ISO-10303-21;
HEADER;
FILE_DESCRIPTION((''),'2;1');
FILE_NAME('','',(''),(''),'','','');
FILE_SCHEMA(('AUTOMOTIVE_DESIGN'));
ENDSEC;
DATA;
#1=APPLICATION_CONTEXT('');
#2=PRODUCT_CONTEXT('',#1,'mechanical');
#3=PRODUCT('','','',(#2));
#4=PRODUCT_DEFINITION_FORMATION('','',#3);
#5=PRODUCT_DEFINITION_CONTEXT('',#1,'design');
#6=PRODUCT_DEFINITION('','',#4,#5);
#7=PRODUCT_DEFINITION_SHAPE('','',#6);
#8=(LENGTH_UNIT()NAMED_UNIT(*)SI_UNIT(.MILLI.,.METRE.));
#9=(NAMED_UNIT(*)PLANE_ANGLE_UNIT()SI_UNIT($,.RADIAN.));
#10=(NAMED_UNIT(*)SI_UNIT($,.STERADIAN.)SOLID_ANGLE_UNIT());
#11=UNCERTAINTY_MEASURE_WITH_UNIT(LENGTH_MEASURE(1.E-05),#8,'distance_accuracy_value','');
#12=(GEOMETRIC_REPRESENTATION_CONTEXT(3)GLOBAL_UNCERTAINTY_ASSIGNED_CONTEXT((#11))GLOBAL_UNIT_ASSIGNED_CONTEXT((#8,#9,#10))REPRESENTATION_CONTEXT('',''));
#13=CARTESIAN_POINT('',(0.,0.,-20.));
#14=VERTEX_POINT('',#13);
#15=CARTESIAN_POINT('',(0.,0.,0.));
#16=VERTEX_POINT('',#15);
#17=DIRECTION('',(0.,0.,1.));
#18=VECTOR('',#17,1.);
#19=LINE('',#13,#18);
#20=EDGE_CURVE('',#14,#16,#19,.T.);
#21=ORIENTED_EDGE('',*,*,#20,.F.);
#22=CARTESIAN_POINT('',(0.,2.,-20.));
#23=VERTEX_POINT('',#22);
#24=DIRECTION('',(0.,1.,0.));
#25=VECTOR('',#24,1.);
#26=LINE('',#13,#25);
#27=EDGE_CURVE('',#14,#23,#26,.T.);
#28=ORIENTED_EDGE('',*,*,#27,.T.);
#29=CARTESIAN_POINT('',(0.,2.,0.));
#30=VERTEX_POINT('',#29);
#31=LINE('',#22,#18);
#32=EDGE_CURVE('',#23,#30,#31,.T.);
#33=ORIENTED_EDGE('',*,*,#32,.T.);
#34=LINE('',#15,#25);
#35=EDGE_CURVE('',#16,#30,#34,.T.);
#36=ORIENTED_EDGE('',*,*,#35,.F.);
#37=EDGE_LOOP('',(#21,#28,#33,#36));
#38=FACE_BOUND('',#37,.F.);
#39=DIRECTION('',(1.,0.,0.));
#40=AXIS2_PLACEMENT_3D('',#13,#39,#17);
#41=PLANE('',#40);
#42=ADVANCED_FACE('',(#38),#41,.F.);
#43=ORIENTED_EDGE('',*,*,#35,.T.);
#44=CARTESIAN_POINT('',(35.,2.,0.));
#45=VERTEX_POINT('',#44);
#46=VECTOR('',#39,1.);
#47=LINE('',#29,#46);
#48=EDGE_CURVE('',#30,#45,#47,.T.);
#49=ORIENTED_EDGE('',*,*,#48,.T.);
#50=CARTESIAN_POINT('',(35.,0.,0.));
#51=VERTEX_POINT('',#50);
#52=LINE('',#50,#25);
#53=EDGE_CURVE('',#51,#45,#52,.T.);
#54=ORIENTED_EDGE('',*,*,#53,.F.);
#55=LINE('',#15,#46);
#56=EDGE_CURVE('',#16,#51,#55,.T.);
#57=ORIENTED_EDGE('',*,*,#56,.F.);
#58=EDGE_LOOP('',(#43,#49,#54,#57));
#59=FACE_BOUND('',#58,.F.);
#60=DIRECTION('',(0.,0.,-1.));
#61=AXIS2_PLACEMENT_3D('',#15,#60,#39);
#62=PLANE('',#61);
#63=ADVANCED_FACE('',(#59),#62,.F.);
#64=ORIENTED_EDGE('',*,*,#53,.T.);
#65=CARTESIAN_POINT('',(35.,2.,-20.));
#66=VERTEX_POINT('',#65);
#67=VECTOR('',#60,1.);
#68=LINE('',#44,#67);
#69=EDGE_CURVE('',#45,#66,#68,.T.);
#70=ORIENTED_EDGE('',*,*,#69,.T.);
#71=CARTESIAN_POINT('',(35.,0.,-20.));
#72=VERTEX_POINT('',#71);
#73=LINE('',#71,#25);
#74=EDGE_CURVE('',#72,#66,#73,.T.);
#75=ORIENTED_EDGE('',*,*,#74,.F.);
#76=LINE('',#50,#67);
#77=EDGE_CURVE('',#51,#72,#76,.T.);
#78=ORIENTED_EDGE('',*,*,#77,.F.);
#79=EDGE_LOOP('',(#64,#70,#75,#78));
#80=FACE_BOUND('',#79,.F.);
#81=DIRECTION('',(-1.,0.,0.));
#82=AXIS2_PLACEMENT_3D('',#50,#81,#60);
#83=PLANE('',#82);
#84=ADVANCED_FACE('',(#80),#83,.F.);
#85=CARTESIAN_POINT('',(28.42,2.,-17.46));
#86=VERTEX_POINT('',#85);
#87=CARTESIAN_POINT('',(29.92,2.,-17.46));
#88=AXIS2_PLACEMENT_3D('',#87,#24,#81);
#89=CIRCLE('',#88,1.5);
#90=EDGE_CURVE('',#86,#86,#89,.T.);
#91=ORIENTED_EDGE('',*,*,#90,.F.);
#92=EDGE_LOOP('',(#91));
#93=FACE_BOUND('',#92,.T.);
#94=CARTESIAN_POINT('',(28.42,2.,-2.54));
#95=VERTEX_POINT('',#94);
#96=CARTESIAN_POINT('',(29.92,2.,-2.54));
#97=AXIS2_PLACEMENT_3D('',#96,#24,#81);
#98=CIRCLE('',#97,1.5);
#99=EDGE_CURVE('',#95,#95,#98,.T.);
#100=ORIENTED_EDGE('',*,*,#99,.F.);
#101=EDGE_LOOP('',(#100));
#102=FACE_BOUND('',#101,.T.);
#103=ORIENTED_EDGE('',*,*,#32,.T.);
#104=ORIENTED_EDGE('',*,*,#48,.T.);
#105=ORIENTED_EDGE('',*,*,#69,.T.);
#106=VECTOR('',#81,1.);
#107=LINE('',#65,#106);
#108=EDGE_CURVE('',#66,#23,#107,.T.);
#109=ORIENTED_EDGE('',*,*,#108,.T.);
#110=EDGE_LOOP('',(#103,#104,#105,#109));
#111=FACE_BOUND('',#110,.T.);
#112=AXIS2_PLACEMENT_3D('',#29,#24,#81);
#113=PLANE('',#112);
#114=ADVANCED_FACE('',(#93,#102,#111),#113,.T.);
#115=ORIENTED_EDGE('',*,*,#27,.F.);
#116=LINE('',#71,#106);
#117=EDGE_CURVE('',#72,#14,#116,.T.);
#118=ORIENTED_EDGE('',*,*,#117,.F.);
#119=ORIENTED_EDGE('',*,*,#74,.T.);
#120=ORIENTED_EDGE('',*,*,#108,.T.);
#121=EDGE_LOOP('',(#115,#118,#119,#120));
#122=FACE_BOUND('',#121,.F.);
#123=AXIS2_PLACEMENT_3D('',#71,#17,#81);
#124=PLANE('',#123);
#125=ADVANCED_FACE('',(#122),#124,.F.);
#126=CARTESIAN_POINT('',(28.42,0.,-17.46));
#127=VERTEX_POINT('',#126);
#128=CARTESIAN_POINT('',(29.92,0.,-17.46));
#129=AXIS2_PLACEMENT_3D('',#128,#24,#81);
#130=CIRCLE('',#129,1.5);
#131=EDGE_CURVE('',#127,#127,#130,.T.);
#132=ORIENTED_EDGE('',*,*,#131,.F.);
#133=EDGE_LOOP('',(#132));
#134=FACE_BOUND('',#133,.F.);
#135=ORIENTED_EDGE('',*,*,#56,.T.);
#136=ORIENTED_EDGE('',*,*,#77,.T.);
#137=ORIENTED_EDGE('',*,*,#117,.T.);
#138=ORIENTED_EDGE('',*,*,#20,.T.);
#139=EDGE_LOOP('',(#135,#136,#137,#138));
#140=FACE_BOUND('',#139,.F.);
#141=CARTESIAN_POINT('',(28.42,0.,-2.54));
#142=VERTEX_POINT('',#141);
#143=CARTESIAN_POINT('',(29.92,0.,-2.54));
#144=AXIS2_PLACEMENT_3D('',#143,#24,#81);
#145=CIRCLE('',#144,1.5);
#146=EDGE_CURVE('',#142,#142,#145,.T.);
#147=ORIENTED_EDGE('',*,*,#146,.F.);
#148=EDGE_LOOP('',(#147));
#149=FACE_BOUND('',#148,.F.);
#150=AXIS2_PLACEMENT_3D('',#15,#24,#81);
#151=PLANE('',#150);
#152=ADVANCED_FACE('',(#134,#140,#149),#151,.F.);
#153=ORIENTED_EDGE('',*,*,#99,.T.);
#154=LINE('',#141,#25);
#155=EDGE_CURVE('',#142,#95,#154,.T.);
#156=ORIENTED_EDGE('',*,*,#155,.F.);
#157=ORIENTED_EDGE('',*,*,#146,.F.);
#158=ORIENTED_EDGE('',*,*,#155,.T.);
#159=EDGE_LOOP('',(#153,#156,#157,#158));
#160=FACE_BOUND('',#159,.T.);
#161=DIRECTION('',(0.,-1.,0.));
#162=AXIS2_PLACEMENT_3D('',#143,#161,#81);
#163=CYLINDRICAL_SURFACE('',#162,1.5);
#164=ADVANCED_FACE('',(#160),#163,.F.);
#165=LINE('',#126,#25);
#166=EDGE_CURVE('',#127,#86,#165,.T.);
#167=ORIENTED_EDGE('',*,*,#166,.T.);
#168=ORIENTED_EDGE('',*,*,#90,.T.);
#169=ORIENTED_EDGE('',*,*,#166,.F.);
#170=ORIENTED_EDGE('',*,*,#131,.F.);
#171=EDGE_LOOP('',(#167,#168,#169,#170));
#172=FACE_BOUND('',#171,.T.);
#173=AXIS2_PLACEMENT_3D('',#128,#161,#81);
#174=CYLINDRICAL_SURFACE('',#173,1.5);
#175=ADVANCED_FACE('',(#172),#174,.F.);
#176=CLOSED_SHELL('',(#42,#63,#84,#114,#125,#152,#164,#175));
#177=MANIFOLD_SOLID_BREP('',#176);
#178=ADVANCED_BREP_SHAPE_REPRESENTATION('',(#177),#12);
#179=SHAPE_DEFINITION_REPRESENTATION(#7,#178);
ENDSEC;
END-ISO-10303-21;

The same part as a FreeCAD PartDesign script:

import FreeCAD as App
import Part
import Sketcher

V = App.Vector
Q = App.Units.Quantity


def add_polygon(sketch, points):
    """Adds a closed chain of lines whose ends are joined by coincident constraints."""
    first, n = sketch.GeometryCount, len(points)
    for a, b in zip(points, points[1:] + points[:1]):
        sketch.addGeometry(Part.LineSegment(App.Vector(*a, 0), App.Vector(*b, 0)), False)
    for i in range(n):
        sketch.addConstraint(Sketcher.Constraint("Coincident", first + i, 2, first + (i + 1) % n, 1))

doc = App.newDocument("Part")
body = doc.addObject("PartDesign::Body", "Body")

# Sketch on XZ plane
sketch1 = body.newObject("Sketcher::SketchObject", "Sketch")
sketch1.AttachmentSupport = (doc.getObject("XZ_Plane"), [""])
sketch1.MapMode = "FlatFace"
add_polygon(sketch1, [(0, -20), (0, 0), (35, 0), (35, -20)])  # lines 0-3
sketch1.addGeometry(Part.Circle(V(29.92, -17.46, 0), V(0, 0, 1), 1.5), False)  # 4
sketch1.addGeometry(Part.Circle(V(29.92, -2.54, 0), V(0, 0, 1), 1.5), False)  # 5
sketch1.addConstraint(Sketcher.Constraint("Vertical", 0))
sketch1.addConstraint(Sketcher.Constraint("Horizontal", 1))
sketch1.addConstraint(Sketcher.Constraint("Vertical", 2))
sketch1.addConstraint(Sketcher.Constraint("Horizontal", 3))
sketch1.addConstraint(Sketcher.Constraint("Coincident", 0, 2, -1, 1))
sketch1.addConstraint(Sketcher.Constraint("Equal", 4, 5))
sketch1.addConstraint(Sketcher.Constraint("Vertical", 4, 3, 5, 3))
sketch1.addConstraint(Sketcher.Constraint("Diameter", 4, Q("3 mm")))
sketch1.addConstraint(Sketcher.Constraint("DistanceX", 1, 1, 1, 2, Q("35 mm")))
sketch1.addConstraint(Sketcher.Constraint("DistanceY", 0, 1, 0, 2, Q("20 mm")))
sketch1.addConstraint(Sketcher.Constraint("DistanceY", 5, 3, -1, 1, Q("2.54 mm")))
sketch1.addConstraint(Sketcher.Constraint("DistanceX", 5, 3, 1, 2, Q("5.08 mm")))
sketch1.addConstraint(Sketcher.Constraint("DistanceY", 2, 2, 4, 3, Q("2.54 mm")))
pad1 = body.newObject("PartDesign::Pad", "Pad")
pad1.Profile = sketch1
pad1.Length = 2
pad1.Reversed = True

doc.recompute()
